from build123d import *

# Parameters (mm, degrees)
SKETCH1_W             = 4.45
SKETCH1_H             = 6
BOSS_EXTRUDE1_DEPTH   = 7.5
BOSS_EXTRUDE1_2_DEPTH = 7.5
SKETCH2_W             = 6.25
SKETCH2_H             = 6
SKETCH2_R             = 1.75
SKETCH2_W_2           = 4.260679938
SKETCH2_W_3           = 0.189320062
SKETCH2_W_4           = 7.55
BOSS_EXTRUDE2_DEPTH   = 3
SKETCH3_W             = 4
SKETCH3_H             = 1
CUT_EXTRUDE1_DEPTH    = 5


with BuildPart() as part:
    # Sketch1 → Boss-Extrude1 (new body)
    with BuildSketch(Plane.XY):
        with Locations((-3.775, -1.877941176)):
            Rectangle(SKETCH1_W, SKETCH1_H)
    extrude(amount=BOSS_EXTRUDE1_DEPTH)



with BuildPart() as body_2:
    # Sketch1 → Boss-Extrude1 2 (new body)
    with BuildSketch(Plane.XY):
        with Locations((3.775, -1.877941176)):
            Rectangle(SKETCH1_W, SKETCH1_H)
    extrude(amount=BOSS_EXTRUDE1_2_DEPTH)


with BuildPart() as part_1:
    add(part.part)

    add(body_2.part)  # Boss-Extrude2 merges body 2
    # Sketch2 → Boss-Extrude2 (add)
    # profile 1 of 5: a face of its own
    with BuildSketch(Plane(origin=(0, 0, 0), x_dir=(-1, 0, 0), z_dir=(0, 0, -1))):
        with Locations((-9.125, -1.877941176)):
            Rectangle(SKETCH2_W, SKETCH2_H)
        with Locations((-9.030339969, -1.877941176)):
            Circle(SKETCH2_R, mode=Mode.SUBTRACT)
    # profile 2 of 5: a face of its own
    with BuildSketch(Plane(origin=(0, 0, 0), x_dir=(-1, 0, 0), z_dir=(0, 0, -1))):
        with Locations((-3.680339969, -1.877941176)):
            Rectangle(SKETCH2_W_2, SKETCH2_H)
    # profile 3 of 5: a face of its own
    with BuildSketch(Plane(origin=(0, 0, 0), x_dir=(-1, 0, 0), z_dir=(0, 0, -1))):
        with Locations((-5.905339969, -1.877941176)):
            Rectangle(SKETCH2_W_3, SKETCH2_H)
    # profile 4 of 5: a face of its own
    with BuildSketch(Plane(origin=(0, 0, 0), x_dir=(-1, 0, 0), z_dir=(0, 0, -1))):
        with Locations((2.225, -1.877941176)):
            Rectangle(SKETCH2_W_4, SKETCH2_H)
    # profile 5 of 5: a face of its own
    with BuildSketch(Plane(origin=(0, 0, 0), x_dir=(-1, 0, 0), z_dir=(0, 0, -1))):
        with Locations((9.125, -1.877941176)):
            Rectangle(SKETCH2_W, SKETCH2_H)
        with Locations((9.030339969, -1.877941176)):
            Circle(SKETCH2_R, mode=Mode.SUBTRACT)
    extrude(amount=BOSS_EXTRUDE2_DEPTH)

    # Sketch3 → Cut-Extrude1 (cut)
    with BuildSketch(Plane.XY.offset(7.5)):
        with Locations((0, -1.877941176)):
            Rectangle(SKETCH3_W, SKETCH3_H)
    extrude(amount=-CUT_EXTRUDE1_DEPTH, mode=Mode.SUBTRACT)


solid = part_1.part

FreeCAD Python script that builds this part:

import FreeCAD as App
import Part
import Sketcher


def add_polygon(sketch, points):
    """Adds a closed chain of lines whose ends are joined by coincident constraints."""
    first, n = sketch.GeometryCount, len(points)
    for a, b in zip(points, points[1:] + points[:1]):
        sketch.addGeometry(Part.LineSegment(App.Vector(*a, 0), App.Vector(*b, 0)), False)
    for i in range(n):
        sketch.addConstraint(Sketcher.Constraint("Coincident", first + i, 2, first + (i + 1) % n, 1))

doc = App.newDocument("Part")
params = doc.addObject("Spreadsheet::Sheet", "Params")
for row, (alias, value) in enumerate([
    ("sketch1_height", "6 mm"),
    ("sketch1_width", "4.45 mm"),
    ("pad1_length", "7.5 mm"),
    ("sketch2_height", "6 mm"),
    ("sketch2_width", "4.45 mm"),
    ("pad2_length", "7.5 mm"),
    ("sketch3_diameter", "3.5 mm"),
    ("sketch3_height", "6 mm"),
    ("sketch3_width", "24.5 mm"),
    ("pad3_length", "3 mm"),
    ("sketch4_width", "4 mm"),
    ("sketch4_height", "1 mm"),
    ("pocket1_length", "5 mm"),
], start=1):
    params.set(f"A{row}", alias)
    params.set(f"B{row}", "=" + value)
    params.setAlias(f"B{row}", alias)

body = doc.addObject("PartDesign::Body", "Body")

# Sketch on XY plane
sketch1 = body.newObject("Sketcher::SketchObject", "Sketch")
sketch1.AttachmentSupport = (doc.getObject("XY_Plane"), [""])
sketch1.MapMode = "FlatFace"
add_polygon(sketch1, [(-6, 1.122059), (-6, -4.877941), (-1.55, -4.877941), (-1.55, 1.122059)])  # lines 0-3
sketch1.addConstraint(Sketcher.Constraint("Vertical", 0))
sketch1.addConstraint(Sketcher.Constraint("Horizontal", 1))
sketch1.addConstraint(Sketcher.Constraint("Vertical", 2))
sketch1.addConstraint(Sketcher.Constraint("Horizontal", 3))
sketch1.addConstraint(Sketcher.Constraint("DistanceY", 0, 2, 0, 1, 6.0))
sketch1.addConstraint(Sketcher.Constraint("DistanceX", 0, 2, -1, 1, 6.0))
sketch1.addConstraint(Sketcher.Constraint("DistanceX", 1, 1, 1, 2, 4.45))
sketch1.addConstraint(Sketcher.Constraint("DistanceY", 0, 2, -1, 1, 4.877941))
sketch1.setExpression("Constraints[8]", "Params.sketch1_height")
sketch1.setExpression("Constraints[10]", "Params.sketch1_width")
pad1 = body.newObject("PartDesign::Pad", "Pad")
pad1.Profile = sketch1
pad1.setExpression("Length", "Params.pad1_length")
body2 = doc.addObject("PartDesign::Body", "Body001")

# Sketch on XY plane
sketch2 = body2.newObject("Sketcher::SketchObject", "Sketch001")
sketch2.AttachmentSupport = (doc.getObject("XY_Plane001"), [""])
sketch2.MapMode = "FlatFace"
add_polygon(sketch2, [(1.55, 1.122059), (1.55, -4.877941), (6, -4.877941), (6, 1.122059)])  # lines 0-3
sketch2.addConstraint(Sketcher.Constraint("Vertical", 0))
sketch2.addConstraint(Sketcher.Constraint("Horizontal", 1))
sketch2.addConstraint(Sketcher.Constraint("Vertical", 2))
sketch2.addConstraint(Sketcher.Constraint("Horizontal", 3))
sketch2.addConstraint(Sketcher.Constraint("DistanceY", 0, 2, 0, 1, 6.0))
sketch2.addConstraint(Sketcher.Constraint("DistanceX", -1, 1, 1, 2, 6.0))
sketch2.addConstraint(Sketcher.Constraint("DistanceX", 1, 1, 1, 2, 4.45))
sketch2.addConstraint(Sketcher.Constraint("DistanceY", 0, 2, -1, 1, 4.877941))
sketch2.setExpression("Constraints[8]", "Params.sketch2_height")
sketch2.setExpression("Constraints[10]", "Params.sketch2_width")
pad2 = body2.newObject("PartDesign::Pad", "Pad001")
pad2.Profile = sketch2
pad2.setExpression("Length", "Params.pad2_length")
body.AllowCompound = True
doc.recompute()

boolean = body.newObject("PartDesign::Boolean", "Boolean")
boolean.Type = "Fuse"
boolean.addObjects([body2])

# Sketch on XY plane
sketch3 = body.newObject("Sketcher::SketchObject", "Sketch002")
sketch3.AttachmentSupport = (doc.getObject("XY_Plane"), [""])
sketch3.MapMode = "FlatFace"
add_polygon(sketch3, [(12.25, 1.122059), (12.25, -4.877941), (-12.25, -4.877941), (-12.25, 1.122059)])  # lines 0-3
sketch3.addGeometry(Part.Circle(App.Vector(9.03034, -1.877941, 0), App.Vector(0, 0, 1), 1.75), False)  # 4
sketch3.addGeometry(Part.Circle(App.Vector(-9.03034, -1.877941, 0), App.Vector(0, 0, 1), 1.75), False)  # 5
sketch3.addConstraint(Sketcher.Constraint("Vertical", 0))
sketch3.addConstraint(Sketcher.Constraint("Horizontal", 1))
sketch3.addConstraint(Sketcher.Constraint("Vertical", 2))
sketch3.addConstraint(Sketcher.Constraint("Horizontal", 3))
sketch3.addConstraint(Sketcher.Constraint("Equal", 4, 5))
sketch3.addConstraint(Sketcher.Constraint("Symmetric", 4, 3, 5, 3, -2))
sketch3.addConstraint(Sketcher.Constraint("Diameter", 4, 3.5))
sketch3.addConstraint(Sketcher.Constraint("DistanceY", 0, 2, 0, 1, 6.0))
sketch3.addConstraint(Sketcher.Constraint("DistanceX", 1, 2, 1, 1, 24.5))
sketch3.addConstraint(Sketcher.Constraint("DistanceY", 0, 2, 4, 3, 3.0))
sketch3.addConstraint(Sketcher.Constraint("DistanceX", -1, 1, 0, 2, 12.25))
sketch3.addConstraint(Sketcher.Constraint("DistanceX", -1, 1, 4, 3, 9.03034))
sketch3.addConstraint(Sketcher.Constraint("DistanceY", 4, 3, -1, 1, 1.877941))
sketch3.setExpression("Constraints[10]", "Params.sketch3_diameter")
sketch3.setExpression("Constraints[11]", "Params.sketch3_height")
sketch3.setExpression("Constraints[12]", "Params.sketch3_width")
pad3 = body.newObject("PartDesign::Pad", "Pad002")
pad3.Profile = sketch3
pad3.setExpression("Length", "Params.pad3_length")
pad3.Reversed = True

# Sketch on XY plane
sketch4 = body.newObject("Sketcher::SketchObject", "Sketch003")
sketch4.AttachmentSupport = (doc.getObject("XY_Plane"), [""])
sketch4.MapMode = "FlatFace"
sketch4.AttachmentOffset = App.Placement(App.Vector(0, 0, 7.5), App.Rotation())
add_polygon(sketch4, [(-2, -1.377941), (-2, -2.377941), (2, -2.377941), (2, -1.377941)])  # lines 0-3
sketch4.addConstraint(Sketcher.Constraint("Vertical", 0))
sketch4.addConstraint(Sketcher.Constraint("Horizontal", 1))
sketch4.addConstraint(Sketcher.Constraint("Vertical", 2))
sketch4.addConstraint(Sketcher.Constraint("Horizontal", 3))
sketch4.addConstraint(Sketcher.Constraint("DistanceX", 1, 1, 1, 2, 4.0))
sketch4.addConstraint(Sketcher.Constraint("DistanceY", 0, 2, 0, 1, 1.0))
sketch4.addConstraint(Sketcher.Constraint("DistanceX", 0, 2, -1, 1, 2.0))
sketch4.addConstraint(Sketcher.Constraint("DistanceY", 0, 2, -1, 1, 2.377941))
sketch4.setExpression("Constraints[8]", "Params.sketch4_width")
sketch4.setExpression("Constraints[9]", "Params.sketch4_height")
pocket1 = body.newObject("PartDesign::Pocket", "Pocket")
pocket1.Profile = sketch4
pocket1.setExpression("Length", "Params.pocket1_length")

doc.recompute()
